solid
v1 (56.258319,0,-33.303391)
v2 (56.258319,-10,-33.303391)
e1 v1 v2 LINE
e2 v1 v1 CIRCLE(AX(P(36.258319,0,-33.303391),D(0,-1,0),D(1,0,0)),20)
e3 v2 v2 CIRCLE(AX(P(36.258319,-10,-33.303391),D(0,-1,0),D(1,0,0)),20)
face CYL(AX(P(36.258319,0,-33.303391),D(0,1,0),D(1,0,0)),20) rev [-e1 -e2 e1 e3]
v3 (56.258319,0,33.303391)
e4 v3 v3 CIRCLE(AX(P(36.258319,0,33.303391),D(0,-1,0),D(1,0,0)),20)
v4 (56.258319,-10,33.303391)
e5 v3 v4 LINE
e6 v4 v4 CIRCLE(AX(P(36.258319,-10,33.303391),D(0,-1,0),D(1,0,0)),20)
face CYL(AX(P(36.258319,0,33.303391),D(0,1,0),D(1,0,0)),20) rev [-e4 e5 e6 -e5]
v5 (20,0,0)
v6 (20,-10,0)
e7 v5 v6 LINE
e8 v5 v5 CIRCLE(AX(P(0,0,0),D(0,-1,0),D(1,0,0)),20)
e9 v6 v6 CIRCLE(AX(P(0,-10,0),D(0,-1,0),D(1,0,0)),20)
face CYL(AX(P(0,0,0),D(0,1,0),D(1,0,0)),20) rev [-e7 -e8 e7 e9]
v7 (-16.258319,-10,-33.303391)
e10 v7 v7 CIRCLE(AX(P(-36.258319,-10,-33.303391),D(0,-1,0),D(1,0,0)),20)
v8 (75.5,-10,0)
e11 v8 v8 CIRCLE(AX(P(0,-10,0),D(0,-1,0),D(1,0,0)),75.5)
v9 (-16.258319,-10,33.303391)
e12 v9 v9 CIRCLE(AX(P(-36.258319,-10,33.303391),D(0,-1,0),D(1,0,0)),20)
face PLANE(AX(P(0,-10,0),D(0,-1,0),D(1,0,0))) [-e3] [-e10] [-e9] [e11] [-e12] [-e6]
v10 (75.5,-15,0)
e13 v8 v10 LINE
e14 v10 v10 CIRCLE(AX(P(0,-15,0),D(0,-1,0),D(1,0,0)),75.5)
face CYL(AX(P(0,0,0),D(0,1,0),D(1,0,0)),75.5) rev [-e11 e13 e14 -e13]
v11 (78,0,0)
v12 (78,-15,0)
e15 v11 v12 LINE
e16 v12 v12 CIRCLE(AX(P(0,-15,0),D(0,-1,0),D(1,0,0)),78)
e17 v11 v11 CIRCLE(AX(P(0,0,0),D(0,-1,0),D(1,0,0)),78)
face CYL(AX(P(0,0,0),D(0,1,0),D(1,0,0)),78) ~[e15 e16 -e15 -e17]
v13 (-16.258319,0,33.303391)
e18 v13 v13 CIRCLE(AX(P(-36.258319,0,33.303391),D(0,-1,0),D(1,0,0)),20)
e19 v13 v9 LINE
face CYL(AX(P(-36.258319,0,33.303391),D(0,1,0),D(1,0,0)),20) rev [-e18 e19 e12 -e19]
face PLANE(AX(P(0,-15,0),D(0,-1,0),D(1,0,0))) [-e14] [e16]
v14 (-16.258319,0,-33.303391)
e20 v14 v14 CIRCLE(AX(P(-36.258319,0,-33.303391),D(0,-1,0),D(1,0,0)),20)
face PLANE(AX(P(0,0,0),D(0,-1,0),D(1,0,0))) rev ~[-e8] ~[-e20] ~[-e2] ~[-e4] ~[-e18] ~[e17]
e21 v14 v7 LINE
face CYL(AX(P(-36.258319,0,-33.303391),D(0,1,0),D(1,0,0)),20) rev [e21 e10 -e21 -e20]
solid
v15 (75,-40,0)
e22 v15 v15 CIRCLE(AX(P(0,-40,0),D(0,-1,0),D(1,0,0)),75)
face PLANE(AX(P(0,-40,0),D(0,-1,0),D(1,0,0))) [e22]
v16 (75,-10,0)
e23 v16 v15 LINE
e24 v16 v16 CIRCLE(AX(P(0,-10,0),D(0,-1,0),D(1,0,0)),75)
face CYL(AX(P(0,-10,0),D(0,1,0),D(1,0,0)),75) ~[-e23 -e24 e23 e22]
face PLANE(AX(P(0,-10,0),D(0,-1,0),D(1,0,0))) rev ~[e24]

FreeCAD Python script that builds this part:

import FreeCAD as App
import Part
import Sketcher

V = App.Vector
Q = App.Units.Quantity

doc = App.newDocument("Part")
body = doc.addObject("PartDesign::Body", "Body")

# Sketch on XZ plane
sketch1 = body.newObject("Sketcher::SketchObject", "Sketch")
sketch1.AttachmentSupport = (doc.getObject("XZ_Plane"), [""])
sketch1.MapMode = "FlatFace"
sketch1.addGeometry(Part.Circle(V(0, 0, 0), V(0, 0, 1), 75.5), False)
sketch1.addGeometry(Part.Circle(V(-36.258319, -33.303391, 0), V(0, 0, 1), 20), False)
sketch1.addGeometry(Part.Circle(V(36.258319, -33.303391, 0), V(0, 0, 1), 20), False)
sketch1.addGeometry(Part.Circle(V(0, 0, 0), V(0, 0, 1), 20), False)
sketch1.addGeometry(Part.Circle(V(-36.258319, 33.303391, 0), V(0, 0, 1), 20), False)
sketch1.addGeometry(Part.Circle(V(36.258319, 33.303391, 0), V(0, 0, 1), 20), False)
sketch1.addConstraint(Sketcher.Constraint("Coincident", 0, 3, -1, 1))
sketch1.addConstraint(Sketcher.Constraint("Coincident", 3, 3, -1, 1))
sketch1.addConstraint(Sketcher.Constraint("Equal", 1, 2))
sketch1.addConstraint(Sketcher.Constraint("Equal", 2, 3))
sketch1.addConstraint(Sketcher.Constraint("Equal", 3, 4))
sketch1.addConstraint(Sketcher.Constraint("Equal", 4, 5))
sketch1.addConstraint(Sketcher.Constraint("Symmetric", 2, 3, 4, 3, -1, 1))
sketch1.addConstraint(Sketcher.Constraint("Symmetric", 1, 3, 5, 3, -1, 1))
sketch1.addConstraint(Sketcher.Constraint("Symmetric", 1, 3, 2, 3, -2))
sketch1.addConstraint(Sketcher.Constraint("Diameter", 0, Q("151 mm")))
sketch1.addConstraint(Sketcher.Constraint("Diameter", 1, Q("40 mm")))
sketch1.addConstraint(Sketcher.Constraint("DistanceX", 1, 3, -1, 1, Q("36.258319 mm")))
sketch1.addConstraint(Sketcher.Constraint("DistanceY", 1, 3, -1, 1, Q("33.303391 mm")))
pad1 = body.newObject("PartDesign::Pad", "Pad")
pad1.Profile = sketch1
pad1.Length = 10

# Sketch on XZ plane
sketch2 = body.newObject("Sketcher::SketchObject", "Sketch001")
sketch2.AttachmentSupport = (doc.getObject("XZ_Plane"), [""])
sketch2.MapMode = "FlatFace"
sketch2.addGeometry(Part.Circle(V(0, 0, 0), V(0, 0, 1), 78), False)
sketch2.addGeometry(Part.Circle(V(0, 0, 0), V(0, 0, 1), 75.5), False)
sketch2.addConstraint(Sketcher.Constraint("Coincident", 0, 3, -1, 1))
sketch2.addConstraint(Sketcher.Constraint("Coincident", 1, 3, -1, 1))
sketch2.addConstraint(Sketcher.Constraint("Diameter", 0, Q("156 mm")))
sketch2.addConstraint(Sketcher.Constraint("Diameter", 1, Q("151 mm")))
pad2 = body.newObject("PartDesign::Pad", "Pad001")
pad2.Profile = sketch2
pad2.Length = 15
body2 = doc.addObject("PartDesign::Body", "Body001")

# Sketch on XZ plane
sketch3 = body2.newObject("Sketcher::SketchObject", "Sketch002")
sketch3.AttachmentSupport = (doc.getObject("XZ_Plane001"), [""])
sketch3.MapMode = "FlatFace"
sketch3.AttachmentOffset = App.Placement(V(0, 0, 10), App.Rotation())
sketch3.addGeometry(Part.Circle(V(0, 0, 0), V(0, 0, 1), 75), False)
sketch3.addConstraint(Sketcher.Constraint("Coincident", 0, 3, -1, 1))
sketch3.addConstraint(Sketcher.Constraint("Diameter", 0, Q("150 mm")))
pad3 = body2.newObject("PartDesign::Pad", "Pad002")
pad3.Profile = sketch3
pad3.Length = 30

doc.recompute()
